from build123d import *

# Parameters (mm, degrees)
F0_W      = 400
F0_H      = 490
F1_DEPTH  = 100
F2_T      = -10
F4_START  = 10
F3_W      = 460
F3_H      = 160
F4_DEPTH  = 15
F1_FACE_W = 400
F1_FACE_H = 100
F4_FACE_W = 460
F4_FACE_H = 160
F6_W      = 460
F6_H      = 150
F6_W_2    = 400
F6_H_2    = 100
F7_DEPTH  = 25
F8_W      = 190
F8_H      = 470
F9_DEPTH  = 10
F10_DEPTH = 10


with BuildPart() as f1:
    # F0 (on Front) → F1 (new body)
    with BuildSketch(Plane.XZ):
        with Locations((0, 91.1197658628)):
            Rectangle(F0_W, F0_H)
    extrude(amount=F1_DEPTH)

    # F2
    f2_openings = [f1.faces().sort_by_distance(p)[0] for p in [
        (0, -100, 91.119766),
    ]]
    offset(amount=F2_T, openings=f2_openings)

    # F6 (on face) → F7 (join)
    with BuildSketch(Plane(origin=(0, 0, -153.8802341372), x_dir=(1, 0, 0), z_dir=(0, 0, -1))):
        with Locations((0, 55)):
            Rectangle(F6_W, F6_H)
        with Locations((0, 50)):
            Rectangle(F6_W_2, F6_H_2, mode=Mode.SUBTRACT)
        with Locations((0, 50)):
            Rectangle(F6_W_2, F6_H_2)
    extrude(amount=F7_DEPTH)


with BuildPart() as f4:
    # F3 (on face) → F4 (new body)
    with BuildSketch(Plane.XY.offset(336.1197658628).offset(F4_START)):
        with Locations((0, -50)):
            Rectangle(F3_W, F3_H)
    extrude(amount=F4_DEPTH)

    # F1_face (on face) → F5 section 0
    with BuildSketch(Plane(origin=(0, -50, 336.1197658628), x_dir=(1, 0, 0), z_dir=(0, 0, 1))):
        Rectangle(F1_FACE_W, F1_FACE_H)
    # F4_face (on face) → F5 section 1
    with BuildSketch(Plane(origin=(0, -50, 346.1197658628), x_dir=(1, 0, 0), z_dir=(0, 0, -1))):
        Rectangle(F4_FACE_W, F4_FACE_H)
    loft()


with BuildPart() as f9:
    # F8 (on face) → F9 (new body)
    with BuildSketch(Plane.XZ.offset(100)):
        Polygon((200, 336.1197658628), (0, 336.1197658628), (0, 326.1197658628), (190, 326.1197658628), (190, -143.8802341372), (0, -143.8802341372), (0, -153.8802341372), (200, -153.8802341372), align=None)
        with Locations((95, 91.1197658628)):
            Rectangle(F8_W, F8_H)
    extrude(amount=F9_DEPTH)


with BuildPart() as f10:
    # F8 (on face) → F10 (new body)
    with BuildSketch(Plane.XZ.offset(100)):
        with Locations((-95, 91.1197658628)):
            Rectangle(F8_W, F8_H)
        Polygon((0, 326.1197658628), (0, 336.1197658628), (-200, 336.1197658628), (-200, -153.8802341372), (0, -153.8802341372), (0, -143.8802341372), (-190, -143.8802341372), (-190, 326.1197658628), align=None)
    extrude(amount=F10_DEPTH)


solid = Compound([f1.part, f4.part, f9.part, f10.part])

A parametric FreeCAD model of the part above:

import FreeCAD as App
import Part
import Sketcher
Q = App.Units.Quantity


def faces_at(feature, points):
    """Names of the faces that lie closest to the given points."""
    faces = feature.Shape.Faces
    near = lambda p: min(range(len(faces)), key=lambda i: faces[i].distToShape(Part.Vertex(*p))[0])
    return sorted({f"Face{near(p) + 1}" for p in points})

doc = App.newDocument("Part")
body = doc.addObject("PartDesign::Body", "Body")

# Sketch on XZ plane
sketch1 = body.newObject("Sketcher::SketchObject", "Sketch")
sketch1.AttachmentSupport = (doc.getObject("XZ_Plane"), [""])
sketch1.MapMode = "FlatFace"
sketch1.addGeometry(Part.LineSegment(App.Vector(-200, 336, 0), App.Vector(-200, -154, 0)), False)
sketch1.addGeometry(Part.LineSegment(App.Vector(-200, -154, 0), App.Vector(200, -154, 0)), False)
sketch1.addGeometry(Part.LineSegment(App.Vector(200, -154, 0), App.Vector(200, 336, 0)), False)
sketch1.addGeometry(Part.LineSegment(App.Vector(200, 336, 0), App.Vector(-200, 336, 0)), False)
sketch1.addConstraint(Sketcher.Constraint("Coincident", 0, 2, 1, 1))
sketch1.addConstraint(Sketcher.Constraint("Coincident", 1, 2, 2, 1))
sketch1.addConstraint(Sketcher.Constraint("Coincident", 2, 2, 3, 1))
sketch1.addConstraint(Sketcher.Constraint("Coincident", 3, 2, 0, 1))
sketch1.addConstraint(Sketcher.Constraint("Vertical", 0))
sketch1.addConstraint(Sketcher.Constraint("Horizontal", 1))
sketch1.addConstraint(Sketcher.Constraint("Vertical", 2))
sketch1.addConstraint(Sketcher.Constraint("Horizontal", 3))
sketch1.addConstraint(Sketcher.Constraint("DistanceX", 1, 1, 1, 2, Q("400 mm")))
sketch1.addConstraint(Sketcher.Constraint("DistanceY", 0, 2, 0, 1, Q("490 mm")))
sketch1.addConstraint(Sketcher.Constraint("DistanceX", 0, 2, -1, 1, Q("200 mm")))
sketch1.addConstraint(Sketcher.Constraint("DistanceY", 0, 2, -1, 1, Q("153.880234 mm")))
pad1 = body.newObject("PartDesign::Pad", "Pad")
pad1.Profile = sketch1
pad1.Length = 100
doc.recompute()

thickness = body.newObject("PartDesign::Thickness", "Thickness")
thickness.Base = (pad1, faces_at(pad1, [(0, -100, 91.12)]))
thickness.Value = 10
thickness.Reversed = True
thickness.Join = "Arc"

# Sketch on XY plane
sketch2 = body.newObject("Sketcher::SketchObject", "Sketch001")
sketch2.AttachmentSupport = (doc.getObject("XY_Plane"), [""])
sketch2.MapMode = "FlatFace"
sketch2.AttachmentOffset = App.Placement(App.Vector(0, 0, -153.880234), App.Rotation())
sketch2.addGeometry(Part.LineSegment(App.Vector(-230, -130, 0), App.Vector(-230, 20, 0)), False)
sketch2.addGeometry(Part.LineSegment(App.Vector(-230, 20, 0), App.Vector(230, 20, 0)), False)
sketch2.addGeometry(Part.LineSegment(App.Vector(230, 20, 0), App.Vector(230, -130, 0)), False)
sketch2.addGeometry(Part.LineSegment(App.Vector(230, -130, 0), App.Vector(-230, -130, 0)), False)
sketch2.addConstraint(Sketcher.Constraint("Coincident", 0, 2, 1, 1))
sketch2.addConstraint(Sketcher.Constraint("Coincident", 1, 2, 2, 1))
sketch2.addConstraint(Sketcher.Constraint("Coincident", 2, 2, 3, 1))
sketch2.addConstraint(Sketcher.Constraint("Coincident", 3, 2, 0, 1))
sketch2.addConstraint(Sketcher.Constraint("Vertical", 0))
sketch2.addConstraint(Sketcher.Constraint("Horizontal", 1))
sketch2.addConstraint(Sketcher.Constraint("Vertical", 2))
sketch2.addConstraint(Sketcher.Constraint("Horizontal", 3))
sketch2.addConstraint(Sketcher.Constraint("DistanceX", 1, 1, 1, 2, Q("460 mm")))
sketch2.addConstraint(Sketcher.Constraint("DistanceY", 0, 1, 0, 2, Q("150 mm")))
sketch2.addConstraint(Sketcher.Constraint("DistanceX", 0, 2, -1, 1, Q("230 mm")))
sketch2.addConstraint(Sketcher.Constraint("DistanceY", -1, 1, 0, 2, Q("20 mm")))
pad2 = body.newObject("PartDesign::Pad", "Pad001")
pad2.Profile = sketch2
pad2.Length = 25
pad2.Reversed = True
body2 = doc.addObject("PartDesign::Body", "Body001")

# Sketch on XY plane
sketch3 = body2.newObject("Sketcher::SketchObject", "Sketch002")
sketch3.AttachmentSupport = (doc.getObject("XY_Plane001"), [""])
sketch3.MapMode = "FlatFace"
sketch3.AttachmentOffset = App.Placement(App.Vector(0, 0, 346.119766), App.Rotation())
sketch3.addGeometry(Part.LineSegment(App.Vector(-230, 30, 0), App.Vector(-230, -130, 0)), False)
sketch3.addGeometry(Part.LineSegment(App.Vector(-230, -130, 0), App.Vector(230, -130, 0)), False)
sketch3.addGeometry(Part.LineSegment(App.Vector(230, -130, 0), App.Vector(230, 30, 0)), False)
sketch3.addGeometry(Part.LineSegment(App.Vector(230, 30, 0), App.Vector(-230, 30, 0)), False)
sketch3.addConstraint(Sketcher.Constraint("Coincident", 0, 2, 1, 1))
sketch3.addConstraint(Sketcher.Constraint("Coincident", 1, 2, 2, 1))
sketch3.addConstraint(Sketcher.Constraint("Coincident", 2, 2, 3, 1))
sketch3.addConstraint(Sketcher.Constraint("Coincident", 3, 2, 0, 1))
sketch3.addConstraint(Sketcher.Constraint("Vertical", 0))
sketch3.addConstraint(Sketcher.Constraint("Horizontal", 1))
sketch3.addConstraint(Sketcher.Constraint("Vertical", 2))
sketch3.addConstraint(Sketcher.Constraint("Horizontal", 3))
sketch3.addConstraint(Sketcher.Constraint("DistanceX", 1, 1, 1, 2, Q("460 mm")))
sketch3.addConstraint(Sketcher.Constraint("DistanceY", 0, 2, 0, 1, Q("160 mm")))
sketch3.addConstraint(Sketcher.Constraint("DistanceX", 0, 2, -1, 1, Q("230 mm")))
sketch3.addConstraint(Sketcher.Constraint("DistanceY", 0, 2, -1, 1, Q("130 mm")))
pad3 = body2.newObject("PartDesign::Pad", "Pad002")
pad3.Profile = sketch3
pad3.Length = 15

# Sketch on XY plane
sketch4 = body2.newObject("Sketcher::SketchObject", "Sketch003")
sketch4.AttachmentSupport = (doc.getObject("XY_Plane001"), [""])
sketch4.MapMode = "FlatFace"
sketch4.AttachmentOffset = App.Placement(App.Vector(0, 0, 336.119766), App.Rotation())
sketch4.addGeometry(Part.LineSegment(App.Vector(-200, 0, 0), App.Vector(-200, -100, 0)), False)
sketch4.addGeometry(Part.LineSegment(App.Vector(-200, -100, 0), App.Vector(200, -100, 0)), False)
sketch4.addGeometry(Part.LineSegment(App.Vector(200, -100, 0), App.Vector(200, 0, 0)), False)
sketch4.addGeometry(Part.LineSegment(App.Vector(200, 0, 0), App.Vector(-200, 0, 0)), False)
sketch4.addConstraint(Sketcher.Constraint("Coincident", 0, 2, 1, 1))
sketch4.addConstraint(Sketcher.Constraint("Coincident", 1, 2, 2, 1))
sketch4.addConstraint(Sketcher.Constraint("Coincident", 2, 2, 3, 1))
sketch4.addConstraint(Sketcher.Constraint("Coincident", 3, 2, 0, 1))
sketch4.addConstraint(Sketcher.Constraint("Vertical", 0))
sketch4.addConstraint(Sketcher.Constraint("Horizontal", 1))
sketch4.addConstraint(Sketcher.Constraint("Vertical", 2))
sketch4.addConstraint(Sketcher.Constraint("Horizontal", 3))
sketch4.addConstraint(Sketcher.Constraint("Symmetric", 2, 2, 3, 2, -1, 1))
sketch4.addConstraint(Sketcher.Constraint("DistanceX", 1, 1, 1, 2, Q("400 mm")))
sketch4.addConstraint(Sketcher.Constraint("DistanceY", 0, 2, 0, 1, Q("100 mm")))

# Sketch on XY plane
sketch5 = body2.newObject("Sketcher::SketchObject", "Sketch004")
sketch5.AttachmentSupport = (doc.getObject("XY_Plane001"), [""])
sketch5.MapMode = "FlatFace"
sketch5.AttachmentOffset = App.Placement(App.Vector(0, 0, 346.119766), App.Rotation())
sketch5.addGeometry(Part.LineSegment(App.Vector(-230, -130, 0), App.Vector(-230, 30, 0)), False)
sketch5.addGeometry(Part.LineSegment(App.Vector(-230, 30, 0), App.Vector(230, 30, 0)), False)
sketch5.addGeometry(Part.LineSegment(App.Vector(230, 30, 0), App.Vector(230, -130, 0)), False)
sketch5.addGeometry(Part.LineSegment(App.Vector(230, -130, 0), App.Vector(-230, -130, 0)), False)
sketch5.addConstraint(Sketcher.Constraint("Coincident", 0, 2, 1, 1))
sketch5.addConstraint(Sketcher.Constraint("Coincident", 1, 2, 2, 1))
sketch5.addConstraint(Sketcher.Constraint("Coincident", 2, 2, 3, 1))
sketch5.addConstraint(Sketcher.Constraint("Coincident", 3, 2, 0, 1))
sketch5.addConstraint(Sketcher.Constraint("Vertical", 0))
sketch5.addConstraint(Sketcher.Constraint("Horizontal", 1))
sketch5.addConstraint(Sketcher.Constraint("Vertical", 2))
sketch5.addConstraint(Sketcher.Constraint("Horizontal", 3))
sketch5.addConstraint(Sketcher.Constraint("DistanceX", 1, 1, 1, 2, Q("460 mm")))
sketch5.addConstraint(Sketcher.Constraint("DistanceY", 0, 1, 0, 2, Q("160 mm")))
sketch5.addConstraint(Sketcher.Constraint("DistanceX", 0, 2, -1, 1, Q("230 mm")))
sketch5.addConstraint(Sketcher.Constraint("DistanceY", -1, 1, 0, 2, Q("30 mm")))

additiveloft = body2.newObject("PartDesign::AdditiveLoft", "AdditiveLoft")
additiveloft.Profile = sketch4
additiveloft.Sections = [sketch5]
body3 = doc.addObject("PartDesign::Body", "Body002")

# Sketch on XZ plane
sketch6 = body3.newObject("Sketcher::SketchObject", "Sketch005")
sketch6.AttachmentSupport = (doc.getObject("XZ_Plane002"), [""])
sketch6.MapMode = "FlatFace"
sketch6.AttachmentOffset = App.Placement(App.Vector(0, 0, 100), App.Rotation())
sketch6.addGeometry(Part.LineSegment(App.Vector(200, 336, 0), App.Vector(0, 336, 0)), False)
sketch6.addGeometry(Part.LineSegment(App.Vector(0, 336, 0), App.Vector(0, -154, 0)), False)
sketch6.addGeometry(Part.LineSegment(App.Vector(0, -154, 0), App.Vector(200, -154, 0)), False)
sketch6.addGeometry(Part.LineSegment(App.Vector(200, -154, 0), App.Vector(200, 336, 0)), False)
sketch6.addConstraint(Sketcher.Constraint("Coincident", 0, 2, 1, 1))
sketch6.addConstraint(Sketcher.Constraint("Coincident", 1, 2, 2, 1))
sketch6.addConstraint(Sketcher.Constraint("Coincident", 2, 2, 3, 1))
sketch6.addConstraint(Sketcher.Constraint("Coincident", 3, 2, 0, 1))
sketch6.addConstraint(Sketcher.Constraint("Horizontal", 0))
sketch6.addConstraint(Sketcher.Constraint("Vertical", 1))
sketch6.addConstraint(Sketcher.Constraint("Horizontal", 2))
sketch6.addConstraint(Sketcher.Constraint("Vertical", 3))
sketch6.addConstraint(Sketcher.Constraint("PointOnObject", 0, 2, -2))
sketch6.addConstraint(Sketcher.Constraint("DistanceX", 0, 2, 0, 1, Q("200 mm")))
sketch6.addConstraint(Sketcher.Constraint("DistanceY", 1, 2, 1, 1, Q("490 mm")))
sketch6.addConstraint(Sketcher.Constraint("DistanceY", -1, 1, 0, 2, Q("336.119766 mm")))
pad4 = body3.newObject("PartDesign::Pad", "Pad003")
pad4.Profile = sketch6
pad4.Length = 10
body4 = doc.addObject("PartDesign::Body", "Body003")

# Sketch on XZ plane
sketch7 = body4.newObject("Sketcher::SketchObject", "Sketch006")
sketch7.AttachmentSupport = (doc.getObject("XZ_Plane003"), [""])
sketch7.MapMode = "FlatFace"
sketch7.AttachmentOffset = App.Placement(App.Vector(0, 0, 100), App.Rotation())
sketch7.addGeometry(Part.LineSegment(App.Vector(0, 336, 0), App.Vector(-200, 336, 0)), False)
sketch7.addGeometry(Part.LineSegment(App.Vector(-200, 336, 0), App.Vector(-200, -154, 0)), False)
sketch7.addGeometry(Part.LineSegment(App.Vector(-200, -154, 0), App.Vector(0, -154, 0)), False)
sketch7.addGeometry(Part.LineSegment(App.Vector(0, -154, 0), App.Vector(0, 336, 0)), False)
sketch7.addConstraint(Sketcher.Constraint("Coincident", 0, 2, 1, 1))
sketch7.addConstraint(Sketcher.Constraint("Coincident", 1, 2, 2, 1))
sketch7.addConstraint(Sketcher.Constraint("Coincident", 2, 2, 3, 1))
sketch7.addConstraint(Sketcher.Constraint("Coincident", 3, 2, 0, 1))
sketch7.addConstraint(Sketcher.Constraint("Horizontal", 0))
sketch7.addConstraint(Sketcher.Constraint("Vertical", 1))
sketch7.addConstraint(Sketcher.Constraint("Horizontal", 2))
sketch7.addConstraint(Sketcher.Constraint("Vertical", 3))
sketch7.addConstraint(Sketcher.Constraint("PointOnObject", 2, 2, -2))
sketch7.addConstraint(Sketcher.Constraint("DistanceX", 0, 2, 0, 1, Q("200 mm")))
sketch7.addConstraint(Sketcher.Constraint("DistanceY", 1, 2, 1, 1, Q("490 mm")))
sketch7.addConstraint(Sketcher.Constraint("DistanceY", -1, 1, 0, 2, Q("336.119766 mm")))
pad5 = body4.newObject("PartDesign::Pad", "Pad004")
pad5.Profile = sketch7
pad5.Length = 10

doc.recompute()
